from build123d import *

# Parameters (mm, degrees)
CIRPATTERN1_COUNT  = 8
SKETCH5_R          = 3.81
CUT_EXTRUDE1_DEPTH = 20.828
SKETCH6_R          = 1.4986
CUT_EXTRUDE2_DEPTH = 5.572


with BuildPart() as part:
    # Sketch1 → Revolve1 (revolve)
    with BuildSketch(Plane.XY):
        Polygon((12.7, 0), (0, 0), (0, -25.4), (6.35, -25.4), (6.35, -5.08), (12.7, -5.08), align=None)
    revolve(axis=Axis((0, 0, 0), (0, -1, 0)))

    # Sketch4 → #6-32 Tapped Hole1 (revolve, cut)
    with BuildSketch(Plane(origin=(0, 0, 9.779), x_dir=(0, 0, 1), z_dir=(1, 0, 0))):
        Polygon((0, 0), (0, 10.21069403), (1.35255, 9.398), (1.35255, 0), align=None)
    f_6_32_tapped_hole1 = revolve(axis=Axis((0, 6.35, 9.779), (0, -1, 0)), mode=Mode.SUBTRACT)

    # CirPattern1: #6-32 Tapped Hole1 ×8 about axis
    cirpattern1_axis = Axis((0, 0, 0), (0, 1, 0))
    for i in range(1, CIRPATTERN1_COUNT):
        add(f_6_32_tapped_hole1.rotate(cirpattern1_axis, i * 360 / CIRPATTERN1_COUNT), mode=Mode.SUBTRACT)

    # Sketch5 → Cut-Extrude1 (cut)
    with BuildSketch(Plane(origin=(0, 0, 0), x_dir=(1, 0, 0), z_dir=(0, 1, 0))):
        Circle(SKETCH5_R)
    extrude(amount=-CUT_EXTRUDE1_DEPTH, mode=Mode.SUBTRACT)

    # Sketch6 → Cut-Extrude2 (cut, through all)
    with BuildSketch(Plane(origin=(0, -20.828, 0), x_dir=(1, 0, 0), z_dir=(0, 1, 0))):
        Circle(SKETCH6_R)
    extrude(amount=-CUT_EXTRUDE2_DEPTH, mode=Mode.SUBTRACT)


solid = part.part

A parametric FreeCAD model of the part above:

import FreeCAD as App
import Part
import Sketcher

V = App.Vector
Q = App.Units.Quantity

doc = App.newDocument("Part")
body = doc.addObject("PartDesign::Body", "Body")

sketch1 = body.newObject("Sketcher::SketchObject", "Sketch")
sketch1.AttachmentSupport = (doc.getObject("XY_Plane"), [""])
sketch1.MapMode = "FlatFace"
sketch1.addGeometry([
    Part.LineSegment(V(13, 0, 0), V(0, 0, 0)),
    Part.LineSegment(V(0, 0, 0), V(0, -25, 0)),
    Part.LineSegment(V(0, -25, 0), V(6, -25, 0)),
    Part.LineSegment(V(6, -25, 0), V(6, -5, 0)),
    Part.LineSegment(V(6, -5, 0), V(13, -5, 0)),
    Part.LineSegment(V(13, -5, 0), V(13, 0, 0)),
], False)
sketch1.addConstraint([
    Sketcher.Constraint("Coincident", 0, 2, 1, 1),
    Sketcher.Constraint("Coincident", 1, 2, 2, 1),
    Sketcher.Constraint("Coincident", 2, 2, 3, 1),
    Sketcher.Constraint("Coincident", 3, 2, 4, 1),
    Sketcher.Constraint("Coincident", 4, 2, 5, 1),
    Sketcher.Constraint("Coincident", 5, 2, 0, 1),
    Sketcher.Constraint("Horizontal", 0),
    Sketcher.Constraint("Vertical", 1),
    Sketcher.Constraint("Horizontal", 2),
    Sketcher.Constraint("Vertical", 3),
    Sketcher.Constraint("Horizontal", 4),
    Sketcher.Constraint("Vertical", 5),
    Sketcher.Constraint("Coincident", 0, 2, -1, 1),
    Sketcher.Constraint("Equal", 2, 4),
    Sketcher.Constraint("DistanceY", 1, 2, 1, 1, Q("1 in")),
    Sketcher.Constraint("DistanceX", 0, 2, 0, 1, Q("0.5 in")),
    Sketcher.Constraint("DistanceY", 3, 1, 3, 2, Q("0.8 in")),
])
revolution = body.newObject("PartDesign::Revolution", "Revolution")
revolution.Profile = sketch1
revolution.ReferenceAxis = (sketch1, ["V_Axis"])
revolution.Angle = 360

sketch2 = body.newObject("Sketcher::SketchObject", "Sketch001")
sketch2.AttachmentSupport = (doc.getObject("YZ_Plane"), [""])
sketch2.MapMode = "FlatFace"
sketch2.addGeometry([
    Part.LineSegment(V(-10.2, 9.8, 0), V(0, 9.8, 0)),
    Part.LineSegment(V(0, 9.8, 0), V(0, 11.1, 0)),
    Part.LineSegment(V(0, 11.1, 0), V(-9.4, 11.1, 0)),
    Part.LineSegment(V(-9.4, 11.1, 0), V(-10.2, 9.8, 0)),
], False)
sketch2.addGeometry(Part.LineSegment(V(0, 9.8, 0), V(-10.2, 9.8, 0)), True)
sketch2.addConstraint([
    Sketcher.Constraint("Coincident", 0, 2, 1, 1),
    Sketcher.Constraint("Coincident", 1, 2, 2, 1),
    Sketcher.Constraint("Coincident", 2, 2, 3, 1),
    Sketcher.Constraint("Coincident", 3, 2, 0, 1),
    Sketcher.Constraint("Horizontal", 0),
    Sketcher.Constraint("Vertical", 1),
    Sketcher.Constraint("Horizontal", 2),
    Sketcher.Constraint("Horizontal", 4),
    Sketcher.Constraint("Coincident", 4, 1, 0, 2),
    Sketcher.Constraint("PointOnObject", 0, 2, -2),
    Sketcher.Constraint("Equal", 0, 4),
    Sketcher.Constraint("Angle", 3, Q("-121 deg")),
    Sketcher.Constraint("DistanceX", 2, 2, 2, 1, Q("0.37 in")),
    Sketcher.Constraint("DistanceY", -1, 1, 0, 2, Q("0.385 in")),
    Sketcher.Constraint("DistanceY", 1, 1, 1, 2, 1.35255),
])
groove = body.newObject("PartDesign::Groove", "Groove")
groove.Profile = sketch2
groove.ReferenceAxis = (sketch2, ["Axis0"])
groove.Angle = 360
doc.recompute()

polarpattern = body.newObject("PartDesign::PolarPattern", "PolarPattern")
polarpattern.Originals = [groove]
polarpattern.Axis = (doc.getObject("Y_Axis"), [""])
polarpattern.Angle = 360
polarpattern.Occurrences = 8
body.Tip = polarpattern

sketch3 = body.newObject("Sketcher::SketchObject", "Sketch002")
sketch3.AttachmentSupport = (doc.getObject("XZ_Plane"), [""])
sketch3.MapMode = "FlatFace"
sketch3.addGeometry(Part.Circle(V(0, 0, 0), V(0, 0, 1), 3.8), False)
sketch3.addConstraint([
    Sketcher.Constraint("Coincident", 0, 3, -1, 1),
    Sketcher.Constraint("Diameter", 0, Q("0.3 in")),
])
pocket1 = body.newObject("PartDesign::Pocket", "Pocket")
pocket1.Profile = sketch3
pocket1.Length = Q("0.82 in")
pocket1.Reversed = True

sketch4 = body.newObject("Sketcher::SketchObject", "Sketch003")
sketch4.AttachmentSupport = (doc.getObject("XZ_Plane"), [""])
sketch4.MapMode = "FlatFace"
sketch4.AttachmentOffset = App.Placement(V(0, 0, 0.82 * 25.4), App.Rotation())
sketch4.addGeometry(Part.Circle(V(0, 0, 0), V(0, 0, 1), 1.5), False)
sketch4.addConstraint([
    Sketcher.Constraint("Coincident", 0, 3, -1, 1),
    Sketcher.Constraint("Diameter", 0, Q("0.118 in")),
])
pocket2 = body.newObject("PartDesign::Pocket", "Pocket001")
pocket2.Profile = sketch4
pocket2.Type = "ThroughAll"
pocket2.Reversed = True

doc.recompute()
